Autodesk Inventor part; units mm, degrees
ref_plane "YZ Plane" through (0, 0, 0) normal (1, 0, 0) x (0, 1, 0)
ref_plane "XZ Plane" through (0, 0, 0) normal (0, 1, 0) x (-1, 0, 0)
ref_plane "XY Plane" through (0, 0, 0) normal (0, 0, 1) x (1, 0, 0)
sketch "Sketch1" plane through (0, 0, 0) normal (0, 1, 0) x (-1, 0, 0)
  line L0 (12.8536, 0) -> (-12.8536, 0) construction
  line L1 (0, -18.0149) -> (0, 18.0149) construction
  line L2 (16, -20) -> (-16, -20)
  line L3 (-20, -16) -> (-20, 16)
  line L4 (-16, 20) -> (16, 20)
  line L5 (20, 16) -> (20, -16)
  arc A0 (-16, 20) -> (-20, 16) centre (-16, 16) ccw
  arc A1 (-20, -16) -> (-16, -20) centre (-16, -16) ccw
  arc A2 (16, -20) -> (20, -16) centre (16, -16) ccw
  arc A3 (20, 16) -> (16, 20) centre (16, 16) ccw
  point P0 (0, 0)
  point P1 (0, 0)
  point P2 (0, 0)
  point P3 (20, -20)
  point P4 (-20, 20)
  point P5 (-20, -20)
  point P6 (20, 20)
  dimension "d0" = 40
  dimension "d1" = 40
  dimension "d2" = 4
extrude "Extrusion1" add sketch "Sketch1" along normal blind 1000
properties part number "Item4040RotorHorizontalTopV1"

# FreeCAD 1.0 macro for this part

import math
import FreeCAD as App
import Part
import Sketcher
Q = App.Units.Quantity

doc = App.newDocument("Part")
body = doc.addObject("PartDesign::Body", "Body")

sketch1 = body.newObject("Sketcher::SketchObject", "Sketch")
sketch1.AttachmentSupport = (doc.getObject("XZ_Plane"), [""])
sketch1.MapMode = "FlatFace"
sketch1.addGeometry([
    Part.LineSegment(App.Vector(16, -20, 0), App.Vector(-16, -20, 0)),
    Part.ArcOfCircle(Part.Circle(App.Vector(-16, -16, 0), App.Vector(0, 0, 1), 4), math.radians(180), math.radians(270)),
    Part.LineSegment(App.Vector(-20, -16, 0), App.Vector(-20, 16, 0)),
    Part.ArcOfCircle(Part.Circle(App.Vector(-16, 16, 0), App.Vector(0, 0, 1), 4), math.radians(90), math.radians(180)),
    Part.LineSegment(App.Vector(-16, 20, 0), App.Vector(16, 20, 0)),
    Part.ArcOfCircle(Part.Circle(App.Vector(16, 16, 0), App.Vector(0, 0, 1), 4), math.radians(0), math.radians(90)),
    Part.LineSegment(App.Vector(20, 16, 0), App.Vector(20, -16, 0)),
    Part.ArcOfCircle(Part.Circle(App.Vector(16, -16, 0), App.Vector(0, 0, 1), 4), math.radians(-90), math.radians(0)),
], False)
sketch1.addConstraint([
    Sketcher.Constraint("Tangent", 0, 2, 1, 2),
    Sketcher.Constraint("Tangent", 1, 1, 2, 1),
    Sketcher.Constraint("Tangent", 2, 2, 3, 2),
    Sketcher.Constraint("Tangent", 3, 1, 4, 1),
    Sketcher.Constraint("Tangent", 4, 2, 5, 2),
    Sketcher.Constraint("Tangent", 5, 1, 6, 1),
    Sketcher.Constraint("Tangent", 6, 2, 7, 2),
    Sketcher.Constraint("Tangent", 7, 1, 0, 1),
    Sketcher.Constraint("Horizontal", 0),
    Sketcher.Constraint("Vertical", 2),
    Sketcher.Constraint("Horizontal", 4),
    Sketcher.Constraint("Vertical", 6),
    Sketcher.Constraint("Equal", 1, 3),
    Sketcher.Constraint("Equal", 3, 5),
    Sketcher.Constraint("Equal", 5, 7),
    Sketcher.Constraint("Symmetric", 1, 3, 5, 3, -1, 1),
    Sketcher.Constraint("Equal", 4, 2),
    Sketcher.Constraint("Radius", 1, Q("4 mm")),
    Sketcher.Constraint("DistanceX", 0, 2, 0, 1, Q("32 mm")),
])
pad1 = body.newObject("PartDesign::Pad", "Pad")
pad1.Profile = sketch1
pad1.Length = 1000
pad1.Reversed = True

doc.recompute()
